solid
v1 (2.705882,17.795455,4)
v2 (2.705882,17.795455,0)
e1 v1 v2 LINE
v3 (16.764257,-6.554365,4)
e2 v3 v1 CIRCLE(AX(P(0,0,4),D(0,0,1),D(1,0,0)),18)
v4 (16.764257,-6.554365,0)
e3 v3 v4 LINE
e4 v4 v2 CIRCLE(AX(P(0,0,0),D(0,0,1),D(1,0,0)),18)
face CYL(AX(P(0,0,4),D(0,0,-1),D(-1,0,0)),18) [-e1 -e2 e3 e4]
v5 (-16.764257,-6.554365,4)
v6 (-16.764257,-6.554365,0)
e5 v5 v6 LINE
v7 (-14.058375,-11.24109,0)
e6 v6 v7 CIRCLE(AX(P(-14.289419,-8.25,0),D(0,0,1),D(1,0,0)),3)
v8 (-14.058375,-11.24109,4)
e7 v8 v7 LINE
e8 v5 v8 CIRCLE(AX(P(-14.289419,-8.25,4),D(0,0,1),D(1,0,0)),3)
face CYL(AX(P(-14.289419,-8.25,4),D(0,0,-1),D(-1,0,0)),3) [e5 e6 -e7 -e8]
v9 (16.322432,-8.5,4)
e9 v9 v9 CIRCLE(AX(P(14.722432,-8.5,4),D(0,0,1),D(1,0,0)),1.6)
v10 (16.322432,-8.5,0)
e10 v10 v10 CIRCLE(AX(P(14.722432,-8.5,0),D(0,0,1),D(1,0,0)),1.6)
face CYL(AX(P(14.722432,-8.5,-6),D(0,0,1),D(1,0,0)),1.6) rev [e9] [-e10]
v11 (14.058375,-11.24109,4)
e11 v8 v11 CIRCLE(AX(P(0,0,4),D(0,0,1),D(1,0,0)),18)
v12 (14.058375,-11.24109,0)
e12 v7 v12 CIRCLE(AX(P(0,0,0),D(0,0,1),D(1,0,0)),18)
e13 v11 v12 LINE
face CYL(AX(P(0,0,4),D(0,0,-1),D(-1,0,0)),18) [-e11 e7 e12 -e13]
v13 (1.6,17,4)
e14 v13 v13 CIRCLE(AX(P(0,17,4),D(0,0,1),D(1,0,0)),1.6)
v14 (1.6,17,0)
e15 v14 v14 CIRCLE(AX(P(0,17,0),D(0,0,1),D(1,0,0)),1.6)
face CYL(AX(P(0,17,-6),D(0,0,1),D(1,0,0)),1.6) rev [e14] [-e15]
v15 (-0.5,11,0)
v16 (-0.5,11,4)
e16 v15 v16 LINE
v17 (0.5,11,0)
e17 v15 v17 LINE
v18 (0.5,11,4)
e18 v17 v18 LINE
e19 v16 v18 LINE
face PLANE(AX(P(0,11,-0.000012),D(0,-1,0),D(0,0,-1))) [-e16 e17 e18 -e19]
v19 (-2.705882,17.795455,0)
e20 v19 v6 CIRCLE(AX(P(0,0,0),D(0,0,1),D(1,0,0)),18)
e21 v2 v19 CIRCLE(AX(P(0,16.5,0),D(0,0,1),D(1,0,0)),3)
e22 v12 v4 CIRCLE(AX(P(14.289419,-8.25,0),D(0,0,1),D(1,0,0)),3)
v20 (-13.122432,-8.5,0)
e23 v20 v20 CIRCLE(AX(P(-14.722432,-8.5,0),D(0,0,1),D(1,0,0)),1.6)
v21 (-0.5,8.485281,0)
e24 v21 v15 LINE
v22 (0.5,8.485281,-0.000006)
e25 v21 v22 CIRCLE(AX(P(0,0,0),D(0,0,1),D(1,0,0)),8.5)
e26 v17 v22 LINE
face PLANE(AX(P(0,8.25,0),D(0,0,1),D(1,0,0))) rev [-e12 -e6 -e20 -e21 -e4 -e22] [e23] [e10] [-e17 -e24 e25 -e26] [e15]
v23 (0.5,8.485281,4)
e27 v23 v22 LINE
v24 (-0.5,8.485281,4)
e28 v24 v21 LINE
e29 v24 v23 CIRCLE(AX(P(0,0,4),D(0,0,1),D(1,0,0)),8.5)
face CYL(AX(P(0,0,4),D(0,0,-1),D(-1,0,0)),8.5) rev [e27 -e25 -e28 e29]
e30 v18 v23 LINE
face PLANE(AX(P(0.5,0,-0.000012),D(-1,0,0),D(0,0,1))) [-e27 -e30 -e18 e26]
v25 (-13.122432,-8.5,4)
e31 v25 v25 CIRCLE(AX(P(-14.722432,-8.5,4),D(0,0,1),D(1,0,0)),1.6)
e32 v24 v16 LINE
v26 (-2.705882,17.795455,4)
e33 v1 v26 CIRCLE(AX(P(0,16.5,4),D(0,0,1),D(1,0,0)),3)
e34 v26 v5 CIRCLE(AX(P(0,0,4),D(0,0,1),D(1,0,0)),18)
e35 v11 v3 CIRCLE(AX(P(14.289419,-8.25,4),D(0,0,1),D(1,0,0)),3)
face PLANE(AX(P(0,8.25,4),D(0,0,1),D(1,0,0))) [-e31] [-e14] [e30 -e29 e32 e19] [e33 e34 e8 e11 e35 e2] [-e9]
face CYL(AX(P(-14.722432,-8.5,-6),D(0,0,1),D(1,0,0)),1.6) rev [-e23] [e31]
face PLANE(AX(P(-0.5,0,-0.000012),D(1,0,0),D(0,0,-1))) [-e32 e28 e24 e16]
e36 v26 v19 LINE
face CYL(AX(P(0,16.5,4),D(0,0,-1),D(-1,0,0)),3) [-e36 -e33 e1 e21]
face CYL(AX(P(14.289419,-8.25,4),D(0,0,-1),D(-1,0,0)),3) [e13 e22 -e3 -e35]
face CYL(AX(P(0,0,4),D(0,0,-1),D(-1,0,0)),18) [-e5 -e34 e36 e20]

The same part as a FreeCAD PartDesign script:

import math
import FreeCAD as App
import Part
import Sketcher
from FreeCAD import Vector
Q = App.Units.Quantity

doc = App.newDocument("Part")
body = doc.addObject("PartDesign::Body", "Body")

# Sketch on XY plane
sketch1 = body.newObject("Sketcher::SketchObject", "Sketch")
sketch1.AttachmentSupport = (doc.getObject("XY_Plane"), [""])
sketch1.MapMode = "FlatFace"
sketch1.addGeometry([
    Part.ArcOfCircle(Part.Circle(Vector(0, 0, 0), Vector(0, 0, 1), 18), math.radians(-141), math.radians(-39)),  # 0
    Part.ArcOfCircle(Part.Circle(Vector(14.3, -8.2, 0), Vector(0, 0, 1), 3), math.radians(-94), math.radians(34)),  # 1
    Part.ArcOfCircle(Part.Circle(Vector(0, 0, 0), Vector(0, 0, 1), 18), math.radians(-21), math.radians(81)),  # 2
    Part.ArcOfCircle(Part.Circle(Vector(0, 16.5, 0), Vector(0, 0, 1), 3), math.radians(26), math.radians(154)),  # 3
    Part.ArcOfCircle(Part.Circle(Vector(0, 0, 0), Vector(0, 0, 1), 18), math.radians(99), math.radians(201)),  # 4
    Part.ArcOfCircle(Part.Circle(Vector(-14.3, -8.2, 0), Vector(0, 0, 1), 3), math.radians(146), math.radians(274)),  # 5
    Part.Circle(Vector(0, 0, 0), Vector(0, 0, 1), 8.5),  # 6
], False)
sketch1.addConstraint([
    Sketcher.Constraint("Coincident", 0, 2, 1, 1),
    Sketcher.Constraint("Coincident", 1, 2, 2, 1),
    Sketcher.Constraint("Coincident", 2, 2, 3, 1),
    Sketcher.Constraint("Coincident", 3, 2, 4, 1),
    Sketcher.Constraint("Coincident", 4, 2, 5, 1),
    Sketcher.Constraint("Coincident", 5, 2, 0, 1),
    Sketcher.Constraint("Coincident", 0, 3, -1, 1),
    Sketcher.Constraint("Coincident", 2, 3, -1, 1),
    Sketcher.Constraint("Coincident", 4, 3, -1, 1),
    Sketcher.Constraint("Coincident", 6, 3, -1, 1),
    Sketcher.Constraint("Equal", 0, 2),
    Sketcher.Constraint("Equal", 1, 3),
    Sketcher.Constraint("Equal", 2, 4),
    Sketcher.Constraint("Equal", 3, 5),
    Sketcher.Constraint("Symmetric", 1, 3, 5, 3, -2),
    Sketcher.Constraint("PointOnObject", 3, 3, -2),
    Sketcher.Constraint("Diameter", 6, Q("17 mm")),
    Sketcher.Constraint("Radius", 0, Q("18 mm")),
    Sketcher.Constraint("Radius", 1, Q("3 mm")),
    Sketcher.Constraint("DistanceY", -1, 1, 3, 3, Q("16.5 mm")),
    Sketcher.Constraint("DistanceY", 1, 3, -1, 1, Q("8.25 mm")),
    Sketcher.Constraint("DistanceX", -1, 1, 1, 3, Q("14.289419 mm")),
])
pad1 = body.newObject("PartDesign::Pad", "Pad")
pad1.Profile = sketch1
pad1.Length = 4

# Sketch on XY plane
sketch2 = body.newObject("Sketcher::SketchObject", "Sketch001")
sketch2.AttachmentSupport = (doc.getObject("XY_Plane"), [""])
sketch2.MapMode = "FlatFace"
sketch2.AttachmentOffset = App.Placement(Vector(0, 0, 4), App.Rotation())
sketch2.addGeometry([
    Part.Circle(Vector(0, 17, 0), Vector(0, 0, 1), 1.6),
    Part.Circle(Vector(14.7, -8.5, 0), Vector(0, 0, 1), 1.6),
    Part.Circle(Vector(-14.7, -8.5, 0), Vector(0, 0, 1), 1.6),
], False)
sketch2.addConstraint([
    Sketcher.Constraint("Equal", 0, 1),
    Sketcher.Constraint("Equal", 1, 2),
    Sketcher.Constraint("Symmetric", 1, 3, 2, 3, -2),
    Sketcher.Constraint("PointOnObject", 0, 3, -2),
    Sketcher.Constraint("Diameter", 0, Q("3.2 mm")),
    Sketcher.Constraint("DistanceY", -1, 1, 0, 3, Q("17 mm")),
    Sketcher.Constraint("DistanceY", 1, 3, -1, 1, Q("8.5 mm")),
    Sketcher.Constraint("DistanceX", -1, 1, 1, 3, Q("14.722432 mm")),
])
pocket1 = body.newObject("PartDesign::Pocket", "Pocket")
pocket1.Profile = sketch2
pocket1.Length = 10

# Sketch on XY plane
sketch3 = body.newObject("Sketcher::SketchObject", "Sketch002")
sketch3.AttachmentSupport = (doc.getObject("XY_Plane"), [""])
sketch3.MapMode = "FlatFace"
sketch3.addGeometry([
    Part.ArcOfCircle(Part.Circle(Vector(0, 0, 0), Vector(0, 0, 1), 8.5), math.radians(86.63), math.radians(93.37)),
    Part.LineSegment(Vector(-0.5, 8.5, 0), Vector(-0.5, 11, 0)),
    Part.LineSegment(Vector(-0.5, 11, 0), Vector(0.5, 11, 0)),
    Part.LineSegment(Vector(0.5, 11, 0), Vector(0.5, 8.5, 0)),
], False)
sketch3.addConstraint([
    Sketcher.Constraint("Coincident", 0, 2, 1, 1),
    Sketcher.Constraint("Coincident", 1, 2, 2, 1),
    Sketcher.Constraint("Coincident", 2, 2, 3, 1),
    Sketcher.Constraint("Coincident", 3, 2, 0, 1),
    Sketcher.Constraint("Vertical", 1),
    Sketcher.Constraint("Horizontal", 2),
    Sketcher.Constraint("Vertical", 3),
    Sketcher.Constraint("Coincident", 0, 3, -1, 1),
    Sketcher.Constraint("Horizontal", 0, 2, 3, 2),
    Sketcher.Constraint("Radius", 0, Q("8.5 mm")),
    Sketcher.Constraint("DistanceX", 2, 1, 2, 2, Q("1 mm")),
    Sketcher.Constraint("DistanceY", -1, 1, 1, 2, Q("11 mm")),
])
pocket2 = body.newObject("PartDesign::Pocket", "Pocket001")
pocket2.Profile = sketch3
pocket2.Type = "ThroughAll"
pocket2.Midplane = True

doc.recompute()
